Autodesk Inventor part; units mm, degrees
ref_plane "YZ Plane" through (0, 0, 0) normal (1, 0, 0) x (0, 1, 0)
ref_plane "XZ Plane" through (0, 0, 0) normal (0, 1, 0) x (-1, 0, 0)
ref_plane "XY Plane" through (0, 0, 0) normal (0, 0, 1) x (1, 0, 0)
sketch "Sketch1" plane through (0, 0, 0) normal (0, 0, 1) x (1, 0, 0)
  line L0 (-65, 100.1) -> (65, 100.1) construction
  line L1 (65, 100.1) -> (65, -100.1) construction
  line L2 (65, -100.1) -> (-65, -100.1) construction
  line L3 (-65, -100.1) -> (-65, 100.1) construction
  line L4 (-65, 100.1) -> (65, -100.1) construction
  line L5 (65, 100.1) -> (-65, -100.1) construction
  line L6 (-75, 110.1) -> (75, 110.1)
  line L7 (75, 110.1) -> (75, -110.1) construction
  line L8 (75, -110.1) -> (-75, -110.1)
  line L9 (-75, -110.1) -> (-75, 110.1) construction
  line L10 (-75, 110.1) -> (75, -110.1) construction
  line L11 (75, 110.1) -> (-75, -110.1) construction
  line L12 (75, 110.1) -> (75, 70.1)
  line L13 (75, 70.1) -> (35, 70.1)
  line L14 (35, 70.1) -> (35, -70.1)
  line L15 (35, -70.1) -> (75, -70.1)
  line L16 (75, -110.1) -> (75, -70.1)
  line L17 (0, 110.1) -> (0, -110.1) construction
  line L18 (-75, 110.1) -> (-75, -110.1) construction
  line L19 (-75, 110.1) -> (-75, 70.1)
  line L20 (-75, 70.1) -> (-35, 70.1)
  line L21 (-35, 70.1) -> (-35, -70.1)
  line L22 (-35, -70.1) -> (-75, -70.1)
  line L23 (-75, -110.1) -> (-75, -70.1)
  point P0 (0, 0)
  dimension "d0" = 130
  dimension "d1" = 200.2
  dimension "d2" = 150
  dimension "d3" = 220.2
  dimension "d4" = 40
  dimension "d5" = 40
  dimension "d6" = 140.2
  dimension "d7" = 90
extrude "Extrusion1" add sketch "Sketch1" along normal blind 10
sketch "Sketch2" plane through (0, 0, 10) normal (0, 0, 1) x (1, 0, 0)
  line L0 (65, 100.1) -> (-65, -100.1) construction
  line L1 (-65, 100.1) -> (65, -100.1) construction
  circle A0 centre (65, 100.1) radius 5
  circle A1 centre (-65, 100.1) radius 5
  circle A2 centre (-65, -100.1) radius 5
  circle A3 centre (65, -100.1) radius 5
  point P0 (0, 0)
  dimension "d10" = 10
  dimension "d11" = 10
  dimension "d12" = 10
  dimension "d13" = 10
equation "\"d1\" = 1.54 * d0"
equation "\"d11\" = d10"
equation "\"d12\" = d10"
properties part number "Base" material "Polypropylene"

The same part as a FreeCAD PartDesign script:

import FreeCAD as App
import Part
import Sketcher
Q = App.Units.Quantity

doc = App.newDocument("Part")
body = doc.addObject("PartDesign::Body", "Body")

# Sketch on XY plane
sketch1 = body.newObject("Sketcher::SketchObject", "Sketch")
sketch1.AttachmentSupport = (doc.getObject("XY_Plane"), [""])
sketch1.MapMode = "FlatFace"
sketch1.addGeometry([
    Part.LineSegment(App.Vector(75, 110, 0), App.Vector(-75, 110, 0)),  # 0
    Part.LineSegment(App.Vector(-75, 110, 0), App.Vector(-75, 70, 0)),  # 1
    Part.LineSegment(App.Vector(-75, 70, 0), App.Vector(-35, 70, 0)),  # 2
    Part.LineSegment(App.Vector(-35, 70, 0), App.Vector(-35, -70, 0)),  # 3
    Part.LineSegment(App.Vector(-35, -70, 0), App.Vector(-75, -70, 0)),  # 4
    Part.LineSegment(App.Vector(-75, -70, 0), App.Vector(-75, -110, 0)),  # 5
    Part.LineSegment(App.Vector(-75, -110, 0), App.Vector(75, -110, 0)),  # 6
    Part.LineSegment(App.Vector(75, -110, 0), App.Vector(75, -70, 0)),  # 7
    Part.LineSegment(App.Vector(75, -70, 0), App.Vector(35, -70, 0)),  # 8
    Part.LineSegment(App.Vector(35, -70, 0), App.Vector(35, 70, 0)),  # 9
    Part.LineSegment(App.Vector(35, 70, 0), App.Vector(75, 70, 0)),  # 10
    Part.LineSegment(App.Vector(75, 70, 0), App.Vector(75, 110, 0)),  # 11
], False)
sketch1.addConstraint([
    Sketcher.Constraint("Coincident", 0, 2, 1, 1),
    Sketcher.Constraint("Coincident", 1, 2, 2, 1),
    Sketcher.Constraint("Coincident", 2, 2, 3, 1),
    Sketcher.Constraint("Coincident", 3, 2, 4, 1),
    Sketcher.Constraint("Coincident", 4, 2, 5, 1),
    Sketcher.Constraint("Coincident", 5, 2, 6, 1),
    Sketcher.Constraint("Coincident", 6, 2, 7, 1),
    Sketcher.Constraint("Coincident", 7, 2, 8, 1),
    Sketcher.Constraint("Coincident", 8, 2, 9, 1),
    Sketcher.Constraint("Coincident", 9, 2, 10, 1),
    Sketcher.Constraint("Coincident", 10, 2, 11, 1),
    Sketcher.Constraint("Coincident", 11, 2, 0, 1),
    Sketcher.Constraint("Horizontal", 0),
    Sketcher.Constraint("Vertical", 1),
    Sketcher.Constraint("Horizontal", 2),
    Sketcher.Constraint("Vertical", 3),
    Sketcher.Constraint("Horizontal", 4),
    Sketcher.Constraint("Vertical", 5),
    Sketcher.Constraint("Horizontal", 6),
    Sketcher.Constraint("Vertical", 7),
    Sketcher.Constraint("Horizontal", 8),
    Sketcher.Constraint("Vertical", 9),
    Sketcher.Constraint("Horizontal", 10),
    Sketcher.Constraint("Vertical", 11),
    Sketcher.Constraint("Symmetric", 0, 2, 6, 2, -1, 1),
    Sketcher.Constraint("Symmetric", 2, 2, 8, 2, -1, 1),
    Sketcher.Constraint("Symmetric", 4, 2, 10, 2, -1, 1),
    Sketcher.Constraint("Symmetric", 4, 2, 7, 2, -2),
    Sketcher.Constraint("Equal", 10, 1),
    Sketcher.Constraint("DistanceX", 0, 2, 0, 1, Q("150 mm")),
    Sketcher.Constraint("DistanceX", 2, 1, 2, 2, Q("40 mm")),
    Sketcher.Constraint("DistanceY", 3, 2, 3, 1, Q("140.2 mm")),
])
pad1 = body.newObject("PartDesign::Pad", "Pad")
pad1.Profile = sketch1
pad1.Length = 10

doc.recompute()
